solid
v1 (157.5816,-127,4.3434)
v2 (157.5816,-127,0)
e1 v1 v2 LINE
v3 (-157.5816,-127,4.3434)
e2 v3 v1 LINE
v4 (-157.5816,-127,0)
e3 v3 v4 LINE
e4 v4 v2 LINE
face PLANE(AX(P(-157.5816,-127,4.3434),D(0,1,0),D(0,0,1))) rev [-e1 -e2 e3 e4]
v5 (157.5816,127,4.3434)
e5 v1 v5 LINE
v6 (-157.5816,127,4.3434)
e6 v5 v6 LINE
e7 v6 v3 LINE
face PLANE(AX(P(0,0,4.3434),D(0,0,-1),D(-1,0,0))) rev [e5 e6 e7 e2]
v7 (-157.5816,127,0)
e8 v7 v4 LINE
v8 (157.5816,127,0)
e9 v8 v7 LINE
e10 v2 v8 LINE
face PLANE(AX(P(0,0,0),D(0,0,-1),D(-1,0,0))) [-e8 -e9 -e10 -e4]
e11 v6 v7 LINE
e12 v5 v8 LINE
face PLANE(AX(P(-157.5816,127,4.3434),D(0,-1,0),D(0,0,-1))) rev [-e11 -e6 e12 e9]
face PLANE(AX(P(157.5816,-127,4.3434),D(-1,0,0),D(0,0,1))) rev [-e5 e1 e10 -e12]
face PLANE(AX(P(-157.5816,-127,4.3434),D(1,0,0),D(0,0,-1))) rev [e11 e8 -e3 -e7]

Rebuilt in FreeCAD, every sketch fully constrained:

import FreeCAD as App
import Part
import Sketcher
Q = App.Units.Quantity

doc = App.newDocument("Part")
body = doc.addObject("PartDesign::Body", "Body")

sketch1 = body.newObject("Sketcher::SketchObject", "Sketch")
sketch1.AttachmentSupport = (doc.getObject("XY_Plane"), [""])
sketch1.MapMode = "FlatFace"
sketch1.addGeometry([
    Part.LineSegment(App.Vector(-158, 127, 0), App.Vector(-158, -127, 0)),
    Part.LineSegment(App.Vector(-158, -127, 0), App.Vector(158, -127, 0)),
    Part.LineSegment(App.Vector(158, -127, 0), App.Vector(158, 127, 0)),
    Part.LineSegment(App.Vector(158, 127, 0), App.Vector(-158, 127, 0)),
], False)
sketch1.addConstraint([
    Sketcher.Constraint("Coincident", 0, 2, 1, 1),
    Sketcher.Constraint("Coincident", 1, 2, 2, 1),
    Sketcher.Constraint("Coincident", 2, 2, 3, 1),
    Sketcher.Constraint("Coincident", 3, 2, 0, 1),
    Sketcher.Constraint("Vertical", 0),
    Sketcher.Constraint("Horizontal", 1),
    Sketcher.Constraint("Vertical", 2),
    Sketcher.Constraint("Horizontal", 3),
    Sketcher.Constraint("Symmetric", 0, 2, 2, 2, -1, 1),
    Sketcher.Constraint("DistanceY", 0, 2, 0, 1, Q("10 in")),
    Sketcher.Constraint("DistanceX", 1, 1, 1, 2, Q("12.408 in")),
])
pad1 = body.newObject("PartDesign::Pad", "Pad")
pad1.Profile = sketch1
pad1.Length = Q("0.171 in")

doc.recompute()
